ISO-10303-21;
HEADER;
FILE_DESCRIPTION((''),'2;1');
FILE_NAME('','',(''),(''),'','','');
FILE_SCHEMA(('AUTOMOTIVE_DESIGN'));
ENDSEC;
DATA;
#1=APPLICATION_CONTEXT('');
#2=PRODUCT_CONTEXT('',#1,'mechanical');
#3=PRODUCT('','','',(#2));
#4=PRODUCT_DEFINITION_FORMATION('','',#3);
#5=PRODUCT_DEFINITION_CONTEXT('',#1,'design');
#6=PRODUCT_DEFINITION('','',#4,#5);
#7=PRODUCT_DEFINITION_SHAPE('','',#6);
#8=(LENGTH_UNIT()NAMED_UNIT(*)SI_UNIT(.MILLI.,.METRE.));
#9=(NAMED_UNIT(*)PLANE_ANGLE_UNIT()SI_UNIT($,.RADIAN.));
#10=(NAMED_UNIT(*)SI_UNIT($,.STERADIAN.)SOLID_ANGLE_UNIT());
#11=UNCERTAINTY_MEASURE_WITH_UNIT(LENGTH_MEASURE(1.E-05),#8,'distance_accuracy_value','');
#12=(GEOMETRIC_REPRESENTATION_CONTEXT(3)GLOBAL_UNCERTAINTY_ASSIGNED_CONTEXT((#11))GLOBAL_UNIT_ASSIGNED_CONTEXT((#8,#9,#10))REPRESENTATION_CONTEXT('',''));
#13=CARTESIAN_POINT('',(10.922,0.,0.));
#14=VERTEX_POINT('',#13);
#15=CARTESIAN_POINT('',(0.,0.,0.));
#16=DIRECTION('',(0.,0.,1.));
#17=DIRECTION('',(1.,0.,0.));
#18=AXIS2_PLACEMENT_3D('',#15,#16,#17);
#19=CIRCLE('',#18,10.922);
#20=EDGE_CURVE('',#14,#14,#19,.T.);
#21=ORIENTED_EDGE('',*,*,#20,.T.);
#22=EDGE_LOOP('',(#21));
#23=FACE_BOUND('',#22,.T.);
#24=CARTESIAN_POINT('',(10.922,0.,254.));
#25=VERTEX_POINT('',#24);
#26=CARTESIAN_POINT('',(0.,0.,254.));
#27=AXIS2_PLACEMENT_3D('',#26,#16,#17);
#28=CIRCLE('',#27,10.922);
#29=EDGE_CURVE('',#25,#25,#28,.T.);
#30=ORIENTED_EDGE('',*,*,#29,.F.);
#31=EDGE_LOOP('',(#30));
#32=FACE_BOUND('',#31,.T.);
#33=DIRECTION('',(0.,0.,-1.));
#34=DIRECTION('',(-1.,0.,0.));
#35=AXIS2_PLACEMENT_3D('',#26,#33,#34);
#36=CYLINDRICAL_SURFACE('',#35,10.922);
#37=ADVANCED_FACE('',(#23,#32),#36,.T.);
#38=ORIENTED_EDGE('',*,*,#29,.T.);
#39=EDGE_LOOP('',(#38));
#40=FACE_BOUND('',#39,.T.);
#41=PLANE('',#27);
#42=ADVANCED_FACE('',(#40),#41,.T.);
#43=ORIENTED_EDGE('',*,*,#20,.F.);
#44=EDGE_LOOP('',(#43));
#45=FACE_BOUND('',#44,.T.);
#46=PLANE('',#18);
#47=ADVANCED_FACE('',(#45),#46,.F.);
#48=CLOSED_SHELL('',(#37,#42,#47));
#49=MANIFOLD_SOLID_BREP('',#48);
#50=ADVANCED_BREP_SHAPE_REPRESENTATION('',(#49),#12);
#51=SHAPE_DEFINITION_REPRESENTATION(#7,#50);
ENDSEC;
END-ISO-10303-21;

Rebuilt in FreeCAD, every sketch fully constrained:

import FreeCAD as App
import Part
import Sketcher

V = App.Vector
Q = App.Units.Quantity

doc = App.newDocument("Part")
params = doc.addObject("Spreadsheet::Sheet", "Params")
for row, (alias, value) in enumerate([
    ("sketch1_diameter", "0.86 in"),
    ("pad1_length", "10 in"),
], start=1):
    params.set(f"A{row}", alias)
    params.set(f"B{row}", "=" + value)
    params.setAlias(f"B{row}", alias)

body = doc.addObject("PartDesign::Body", "Body")

sketch1 = body.newObject("Sketcher::SketchObject", "Sketch")
sketch1.AttachmentSupport = (doc.getObject("XY_Plane"), [""])
sketch1.MapMode = "FlatFace"
sketch1.addGeometry(Part.Circle(V(0, 0, 0), V(0, 0, 1), 10.922), False)
sketch1.addConstraint([
    Sketcher.Constraint("Coincident", 0, 3, -1, 1),
    Sketcher.Constraint("Diameter", 0, Q("0.86 in")),
])
sketch1.setExpression("Constraints[1]", "Params.sketch1_diameter")
pad1 = body.newObject("PartDesign::Pad", "Pad")
pad1.Profile = sketch1
pad1.setExpression("Length", "Params.pad1_length")

doc.recompute()
